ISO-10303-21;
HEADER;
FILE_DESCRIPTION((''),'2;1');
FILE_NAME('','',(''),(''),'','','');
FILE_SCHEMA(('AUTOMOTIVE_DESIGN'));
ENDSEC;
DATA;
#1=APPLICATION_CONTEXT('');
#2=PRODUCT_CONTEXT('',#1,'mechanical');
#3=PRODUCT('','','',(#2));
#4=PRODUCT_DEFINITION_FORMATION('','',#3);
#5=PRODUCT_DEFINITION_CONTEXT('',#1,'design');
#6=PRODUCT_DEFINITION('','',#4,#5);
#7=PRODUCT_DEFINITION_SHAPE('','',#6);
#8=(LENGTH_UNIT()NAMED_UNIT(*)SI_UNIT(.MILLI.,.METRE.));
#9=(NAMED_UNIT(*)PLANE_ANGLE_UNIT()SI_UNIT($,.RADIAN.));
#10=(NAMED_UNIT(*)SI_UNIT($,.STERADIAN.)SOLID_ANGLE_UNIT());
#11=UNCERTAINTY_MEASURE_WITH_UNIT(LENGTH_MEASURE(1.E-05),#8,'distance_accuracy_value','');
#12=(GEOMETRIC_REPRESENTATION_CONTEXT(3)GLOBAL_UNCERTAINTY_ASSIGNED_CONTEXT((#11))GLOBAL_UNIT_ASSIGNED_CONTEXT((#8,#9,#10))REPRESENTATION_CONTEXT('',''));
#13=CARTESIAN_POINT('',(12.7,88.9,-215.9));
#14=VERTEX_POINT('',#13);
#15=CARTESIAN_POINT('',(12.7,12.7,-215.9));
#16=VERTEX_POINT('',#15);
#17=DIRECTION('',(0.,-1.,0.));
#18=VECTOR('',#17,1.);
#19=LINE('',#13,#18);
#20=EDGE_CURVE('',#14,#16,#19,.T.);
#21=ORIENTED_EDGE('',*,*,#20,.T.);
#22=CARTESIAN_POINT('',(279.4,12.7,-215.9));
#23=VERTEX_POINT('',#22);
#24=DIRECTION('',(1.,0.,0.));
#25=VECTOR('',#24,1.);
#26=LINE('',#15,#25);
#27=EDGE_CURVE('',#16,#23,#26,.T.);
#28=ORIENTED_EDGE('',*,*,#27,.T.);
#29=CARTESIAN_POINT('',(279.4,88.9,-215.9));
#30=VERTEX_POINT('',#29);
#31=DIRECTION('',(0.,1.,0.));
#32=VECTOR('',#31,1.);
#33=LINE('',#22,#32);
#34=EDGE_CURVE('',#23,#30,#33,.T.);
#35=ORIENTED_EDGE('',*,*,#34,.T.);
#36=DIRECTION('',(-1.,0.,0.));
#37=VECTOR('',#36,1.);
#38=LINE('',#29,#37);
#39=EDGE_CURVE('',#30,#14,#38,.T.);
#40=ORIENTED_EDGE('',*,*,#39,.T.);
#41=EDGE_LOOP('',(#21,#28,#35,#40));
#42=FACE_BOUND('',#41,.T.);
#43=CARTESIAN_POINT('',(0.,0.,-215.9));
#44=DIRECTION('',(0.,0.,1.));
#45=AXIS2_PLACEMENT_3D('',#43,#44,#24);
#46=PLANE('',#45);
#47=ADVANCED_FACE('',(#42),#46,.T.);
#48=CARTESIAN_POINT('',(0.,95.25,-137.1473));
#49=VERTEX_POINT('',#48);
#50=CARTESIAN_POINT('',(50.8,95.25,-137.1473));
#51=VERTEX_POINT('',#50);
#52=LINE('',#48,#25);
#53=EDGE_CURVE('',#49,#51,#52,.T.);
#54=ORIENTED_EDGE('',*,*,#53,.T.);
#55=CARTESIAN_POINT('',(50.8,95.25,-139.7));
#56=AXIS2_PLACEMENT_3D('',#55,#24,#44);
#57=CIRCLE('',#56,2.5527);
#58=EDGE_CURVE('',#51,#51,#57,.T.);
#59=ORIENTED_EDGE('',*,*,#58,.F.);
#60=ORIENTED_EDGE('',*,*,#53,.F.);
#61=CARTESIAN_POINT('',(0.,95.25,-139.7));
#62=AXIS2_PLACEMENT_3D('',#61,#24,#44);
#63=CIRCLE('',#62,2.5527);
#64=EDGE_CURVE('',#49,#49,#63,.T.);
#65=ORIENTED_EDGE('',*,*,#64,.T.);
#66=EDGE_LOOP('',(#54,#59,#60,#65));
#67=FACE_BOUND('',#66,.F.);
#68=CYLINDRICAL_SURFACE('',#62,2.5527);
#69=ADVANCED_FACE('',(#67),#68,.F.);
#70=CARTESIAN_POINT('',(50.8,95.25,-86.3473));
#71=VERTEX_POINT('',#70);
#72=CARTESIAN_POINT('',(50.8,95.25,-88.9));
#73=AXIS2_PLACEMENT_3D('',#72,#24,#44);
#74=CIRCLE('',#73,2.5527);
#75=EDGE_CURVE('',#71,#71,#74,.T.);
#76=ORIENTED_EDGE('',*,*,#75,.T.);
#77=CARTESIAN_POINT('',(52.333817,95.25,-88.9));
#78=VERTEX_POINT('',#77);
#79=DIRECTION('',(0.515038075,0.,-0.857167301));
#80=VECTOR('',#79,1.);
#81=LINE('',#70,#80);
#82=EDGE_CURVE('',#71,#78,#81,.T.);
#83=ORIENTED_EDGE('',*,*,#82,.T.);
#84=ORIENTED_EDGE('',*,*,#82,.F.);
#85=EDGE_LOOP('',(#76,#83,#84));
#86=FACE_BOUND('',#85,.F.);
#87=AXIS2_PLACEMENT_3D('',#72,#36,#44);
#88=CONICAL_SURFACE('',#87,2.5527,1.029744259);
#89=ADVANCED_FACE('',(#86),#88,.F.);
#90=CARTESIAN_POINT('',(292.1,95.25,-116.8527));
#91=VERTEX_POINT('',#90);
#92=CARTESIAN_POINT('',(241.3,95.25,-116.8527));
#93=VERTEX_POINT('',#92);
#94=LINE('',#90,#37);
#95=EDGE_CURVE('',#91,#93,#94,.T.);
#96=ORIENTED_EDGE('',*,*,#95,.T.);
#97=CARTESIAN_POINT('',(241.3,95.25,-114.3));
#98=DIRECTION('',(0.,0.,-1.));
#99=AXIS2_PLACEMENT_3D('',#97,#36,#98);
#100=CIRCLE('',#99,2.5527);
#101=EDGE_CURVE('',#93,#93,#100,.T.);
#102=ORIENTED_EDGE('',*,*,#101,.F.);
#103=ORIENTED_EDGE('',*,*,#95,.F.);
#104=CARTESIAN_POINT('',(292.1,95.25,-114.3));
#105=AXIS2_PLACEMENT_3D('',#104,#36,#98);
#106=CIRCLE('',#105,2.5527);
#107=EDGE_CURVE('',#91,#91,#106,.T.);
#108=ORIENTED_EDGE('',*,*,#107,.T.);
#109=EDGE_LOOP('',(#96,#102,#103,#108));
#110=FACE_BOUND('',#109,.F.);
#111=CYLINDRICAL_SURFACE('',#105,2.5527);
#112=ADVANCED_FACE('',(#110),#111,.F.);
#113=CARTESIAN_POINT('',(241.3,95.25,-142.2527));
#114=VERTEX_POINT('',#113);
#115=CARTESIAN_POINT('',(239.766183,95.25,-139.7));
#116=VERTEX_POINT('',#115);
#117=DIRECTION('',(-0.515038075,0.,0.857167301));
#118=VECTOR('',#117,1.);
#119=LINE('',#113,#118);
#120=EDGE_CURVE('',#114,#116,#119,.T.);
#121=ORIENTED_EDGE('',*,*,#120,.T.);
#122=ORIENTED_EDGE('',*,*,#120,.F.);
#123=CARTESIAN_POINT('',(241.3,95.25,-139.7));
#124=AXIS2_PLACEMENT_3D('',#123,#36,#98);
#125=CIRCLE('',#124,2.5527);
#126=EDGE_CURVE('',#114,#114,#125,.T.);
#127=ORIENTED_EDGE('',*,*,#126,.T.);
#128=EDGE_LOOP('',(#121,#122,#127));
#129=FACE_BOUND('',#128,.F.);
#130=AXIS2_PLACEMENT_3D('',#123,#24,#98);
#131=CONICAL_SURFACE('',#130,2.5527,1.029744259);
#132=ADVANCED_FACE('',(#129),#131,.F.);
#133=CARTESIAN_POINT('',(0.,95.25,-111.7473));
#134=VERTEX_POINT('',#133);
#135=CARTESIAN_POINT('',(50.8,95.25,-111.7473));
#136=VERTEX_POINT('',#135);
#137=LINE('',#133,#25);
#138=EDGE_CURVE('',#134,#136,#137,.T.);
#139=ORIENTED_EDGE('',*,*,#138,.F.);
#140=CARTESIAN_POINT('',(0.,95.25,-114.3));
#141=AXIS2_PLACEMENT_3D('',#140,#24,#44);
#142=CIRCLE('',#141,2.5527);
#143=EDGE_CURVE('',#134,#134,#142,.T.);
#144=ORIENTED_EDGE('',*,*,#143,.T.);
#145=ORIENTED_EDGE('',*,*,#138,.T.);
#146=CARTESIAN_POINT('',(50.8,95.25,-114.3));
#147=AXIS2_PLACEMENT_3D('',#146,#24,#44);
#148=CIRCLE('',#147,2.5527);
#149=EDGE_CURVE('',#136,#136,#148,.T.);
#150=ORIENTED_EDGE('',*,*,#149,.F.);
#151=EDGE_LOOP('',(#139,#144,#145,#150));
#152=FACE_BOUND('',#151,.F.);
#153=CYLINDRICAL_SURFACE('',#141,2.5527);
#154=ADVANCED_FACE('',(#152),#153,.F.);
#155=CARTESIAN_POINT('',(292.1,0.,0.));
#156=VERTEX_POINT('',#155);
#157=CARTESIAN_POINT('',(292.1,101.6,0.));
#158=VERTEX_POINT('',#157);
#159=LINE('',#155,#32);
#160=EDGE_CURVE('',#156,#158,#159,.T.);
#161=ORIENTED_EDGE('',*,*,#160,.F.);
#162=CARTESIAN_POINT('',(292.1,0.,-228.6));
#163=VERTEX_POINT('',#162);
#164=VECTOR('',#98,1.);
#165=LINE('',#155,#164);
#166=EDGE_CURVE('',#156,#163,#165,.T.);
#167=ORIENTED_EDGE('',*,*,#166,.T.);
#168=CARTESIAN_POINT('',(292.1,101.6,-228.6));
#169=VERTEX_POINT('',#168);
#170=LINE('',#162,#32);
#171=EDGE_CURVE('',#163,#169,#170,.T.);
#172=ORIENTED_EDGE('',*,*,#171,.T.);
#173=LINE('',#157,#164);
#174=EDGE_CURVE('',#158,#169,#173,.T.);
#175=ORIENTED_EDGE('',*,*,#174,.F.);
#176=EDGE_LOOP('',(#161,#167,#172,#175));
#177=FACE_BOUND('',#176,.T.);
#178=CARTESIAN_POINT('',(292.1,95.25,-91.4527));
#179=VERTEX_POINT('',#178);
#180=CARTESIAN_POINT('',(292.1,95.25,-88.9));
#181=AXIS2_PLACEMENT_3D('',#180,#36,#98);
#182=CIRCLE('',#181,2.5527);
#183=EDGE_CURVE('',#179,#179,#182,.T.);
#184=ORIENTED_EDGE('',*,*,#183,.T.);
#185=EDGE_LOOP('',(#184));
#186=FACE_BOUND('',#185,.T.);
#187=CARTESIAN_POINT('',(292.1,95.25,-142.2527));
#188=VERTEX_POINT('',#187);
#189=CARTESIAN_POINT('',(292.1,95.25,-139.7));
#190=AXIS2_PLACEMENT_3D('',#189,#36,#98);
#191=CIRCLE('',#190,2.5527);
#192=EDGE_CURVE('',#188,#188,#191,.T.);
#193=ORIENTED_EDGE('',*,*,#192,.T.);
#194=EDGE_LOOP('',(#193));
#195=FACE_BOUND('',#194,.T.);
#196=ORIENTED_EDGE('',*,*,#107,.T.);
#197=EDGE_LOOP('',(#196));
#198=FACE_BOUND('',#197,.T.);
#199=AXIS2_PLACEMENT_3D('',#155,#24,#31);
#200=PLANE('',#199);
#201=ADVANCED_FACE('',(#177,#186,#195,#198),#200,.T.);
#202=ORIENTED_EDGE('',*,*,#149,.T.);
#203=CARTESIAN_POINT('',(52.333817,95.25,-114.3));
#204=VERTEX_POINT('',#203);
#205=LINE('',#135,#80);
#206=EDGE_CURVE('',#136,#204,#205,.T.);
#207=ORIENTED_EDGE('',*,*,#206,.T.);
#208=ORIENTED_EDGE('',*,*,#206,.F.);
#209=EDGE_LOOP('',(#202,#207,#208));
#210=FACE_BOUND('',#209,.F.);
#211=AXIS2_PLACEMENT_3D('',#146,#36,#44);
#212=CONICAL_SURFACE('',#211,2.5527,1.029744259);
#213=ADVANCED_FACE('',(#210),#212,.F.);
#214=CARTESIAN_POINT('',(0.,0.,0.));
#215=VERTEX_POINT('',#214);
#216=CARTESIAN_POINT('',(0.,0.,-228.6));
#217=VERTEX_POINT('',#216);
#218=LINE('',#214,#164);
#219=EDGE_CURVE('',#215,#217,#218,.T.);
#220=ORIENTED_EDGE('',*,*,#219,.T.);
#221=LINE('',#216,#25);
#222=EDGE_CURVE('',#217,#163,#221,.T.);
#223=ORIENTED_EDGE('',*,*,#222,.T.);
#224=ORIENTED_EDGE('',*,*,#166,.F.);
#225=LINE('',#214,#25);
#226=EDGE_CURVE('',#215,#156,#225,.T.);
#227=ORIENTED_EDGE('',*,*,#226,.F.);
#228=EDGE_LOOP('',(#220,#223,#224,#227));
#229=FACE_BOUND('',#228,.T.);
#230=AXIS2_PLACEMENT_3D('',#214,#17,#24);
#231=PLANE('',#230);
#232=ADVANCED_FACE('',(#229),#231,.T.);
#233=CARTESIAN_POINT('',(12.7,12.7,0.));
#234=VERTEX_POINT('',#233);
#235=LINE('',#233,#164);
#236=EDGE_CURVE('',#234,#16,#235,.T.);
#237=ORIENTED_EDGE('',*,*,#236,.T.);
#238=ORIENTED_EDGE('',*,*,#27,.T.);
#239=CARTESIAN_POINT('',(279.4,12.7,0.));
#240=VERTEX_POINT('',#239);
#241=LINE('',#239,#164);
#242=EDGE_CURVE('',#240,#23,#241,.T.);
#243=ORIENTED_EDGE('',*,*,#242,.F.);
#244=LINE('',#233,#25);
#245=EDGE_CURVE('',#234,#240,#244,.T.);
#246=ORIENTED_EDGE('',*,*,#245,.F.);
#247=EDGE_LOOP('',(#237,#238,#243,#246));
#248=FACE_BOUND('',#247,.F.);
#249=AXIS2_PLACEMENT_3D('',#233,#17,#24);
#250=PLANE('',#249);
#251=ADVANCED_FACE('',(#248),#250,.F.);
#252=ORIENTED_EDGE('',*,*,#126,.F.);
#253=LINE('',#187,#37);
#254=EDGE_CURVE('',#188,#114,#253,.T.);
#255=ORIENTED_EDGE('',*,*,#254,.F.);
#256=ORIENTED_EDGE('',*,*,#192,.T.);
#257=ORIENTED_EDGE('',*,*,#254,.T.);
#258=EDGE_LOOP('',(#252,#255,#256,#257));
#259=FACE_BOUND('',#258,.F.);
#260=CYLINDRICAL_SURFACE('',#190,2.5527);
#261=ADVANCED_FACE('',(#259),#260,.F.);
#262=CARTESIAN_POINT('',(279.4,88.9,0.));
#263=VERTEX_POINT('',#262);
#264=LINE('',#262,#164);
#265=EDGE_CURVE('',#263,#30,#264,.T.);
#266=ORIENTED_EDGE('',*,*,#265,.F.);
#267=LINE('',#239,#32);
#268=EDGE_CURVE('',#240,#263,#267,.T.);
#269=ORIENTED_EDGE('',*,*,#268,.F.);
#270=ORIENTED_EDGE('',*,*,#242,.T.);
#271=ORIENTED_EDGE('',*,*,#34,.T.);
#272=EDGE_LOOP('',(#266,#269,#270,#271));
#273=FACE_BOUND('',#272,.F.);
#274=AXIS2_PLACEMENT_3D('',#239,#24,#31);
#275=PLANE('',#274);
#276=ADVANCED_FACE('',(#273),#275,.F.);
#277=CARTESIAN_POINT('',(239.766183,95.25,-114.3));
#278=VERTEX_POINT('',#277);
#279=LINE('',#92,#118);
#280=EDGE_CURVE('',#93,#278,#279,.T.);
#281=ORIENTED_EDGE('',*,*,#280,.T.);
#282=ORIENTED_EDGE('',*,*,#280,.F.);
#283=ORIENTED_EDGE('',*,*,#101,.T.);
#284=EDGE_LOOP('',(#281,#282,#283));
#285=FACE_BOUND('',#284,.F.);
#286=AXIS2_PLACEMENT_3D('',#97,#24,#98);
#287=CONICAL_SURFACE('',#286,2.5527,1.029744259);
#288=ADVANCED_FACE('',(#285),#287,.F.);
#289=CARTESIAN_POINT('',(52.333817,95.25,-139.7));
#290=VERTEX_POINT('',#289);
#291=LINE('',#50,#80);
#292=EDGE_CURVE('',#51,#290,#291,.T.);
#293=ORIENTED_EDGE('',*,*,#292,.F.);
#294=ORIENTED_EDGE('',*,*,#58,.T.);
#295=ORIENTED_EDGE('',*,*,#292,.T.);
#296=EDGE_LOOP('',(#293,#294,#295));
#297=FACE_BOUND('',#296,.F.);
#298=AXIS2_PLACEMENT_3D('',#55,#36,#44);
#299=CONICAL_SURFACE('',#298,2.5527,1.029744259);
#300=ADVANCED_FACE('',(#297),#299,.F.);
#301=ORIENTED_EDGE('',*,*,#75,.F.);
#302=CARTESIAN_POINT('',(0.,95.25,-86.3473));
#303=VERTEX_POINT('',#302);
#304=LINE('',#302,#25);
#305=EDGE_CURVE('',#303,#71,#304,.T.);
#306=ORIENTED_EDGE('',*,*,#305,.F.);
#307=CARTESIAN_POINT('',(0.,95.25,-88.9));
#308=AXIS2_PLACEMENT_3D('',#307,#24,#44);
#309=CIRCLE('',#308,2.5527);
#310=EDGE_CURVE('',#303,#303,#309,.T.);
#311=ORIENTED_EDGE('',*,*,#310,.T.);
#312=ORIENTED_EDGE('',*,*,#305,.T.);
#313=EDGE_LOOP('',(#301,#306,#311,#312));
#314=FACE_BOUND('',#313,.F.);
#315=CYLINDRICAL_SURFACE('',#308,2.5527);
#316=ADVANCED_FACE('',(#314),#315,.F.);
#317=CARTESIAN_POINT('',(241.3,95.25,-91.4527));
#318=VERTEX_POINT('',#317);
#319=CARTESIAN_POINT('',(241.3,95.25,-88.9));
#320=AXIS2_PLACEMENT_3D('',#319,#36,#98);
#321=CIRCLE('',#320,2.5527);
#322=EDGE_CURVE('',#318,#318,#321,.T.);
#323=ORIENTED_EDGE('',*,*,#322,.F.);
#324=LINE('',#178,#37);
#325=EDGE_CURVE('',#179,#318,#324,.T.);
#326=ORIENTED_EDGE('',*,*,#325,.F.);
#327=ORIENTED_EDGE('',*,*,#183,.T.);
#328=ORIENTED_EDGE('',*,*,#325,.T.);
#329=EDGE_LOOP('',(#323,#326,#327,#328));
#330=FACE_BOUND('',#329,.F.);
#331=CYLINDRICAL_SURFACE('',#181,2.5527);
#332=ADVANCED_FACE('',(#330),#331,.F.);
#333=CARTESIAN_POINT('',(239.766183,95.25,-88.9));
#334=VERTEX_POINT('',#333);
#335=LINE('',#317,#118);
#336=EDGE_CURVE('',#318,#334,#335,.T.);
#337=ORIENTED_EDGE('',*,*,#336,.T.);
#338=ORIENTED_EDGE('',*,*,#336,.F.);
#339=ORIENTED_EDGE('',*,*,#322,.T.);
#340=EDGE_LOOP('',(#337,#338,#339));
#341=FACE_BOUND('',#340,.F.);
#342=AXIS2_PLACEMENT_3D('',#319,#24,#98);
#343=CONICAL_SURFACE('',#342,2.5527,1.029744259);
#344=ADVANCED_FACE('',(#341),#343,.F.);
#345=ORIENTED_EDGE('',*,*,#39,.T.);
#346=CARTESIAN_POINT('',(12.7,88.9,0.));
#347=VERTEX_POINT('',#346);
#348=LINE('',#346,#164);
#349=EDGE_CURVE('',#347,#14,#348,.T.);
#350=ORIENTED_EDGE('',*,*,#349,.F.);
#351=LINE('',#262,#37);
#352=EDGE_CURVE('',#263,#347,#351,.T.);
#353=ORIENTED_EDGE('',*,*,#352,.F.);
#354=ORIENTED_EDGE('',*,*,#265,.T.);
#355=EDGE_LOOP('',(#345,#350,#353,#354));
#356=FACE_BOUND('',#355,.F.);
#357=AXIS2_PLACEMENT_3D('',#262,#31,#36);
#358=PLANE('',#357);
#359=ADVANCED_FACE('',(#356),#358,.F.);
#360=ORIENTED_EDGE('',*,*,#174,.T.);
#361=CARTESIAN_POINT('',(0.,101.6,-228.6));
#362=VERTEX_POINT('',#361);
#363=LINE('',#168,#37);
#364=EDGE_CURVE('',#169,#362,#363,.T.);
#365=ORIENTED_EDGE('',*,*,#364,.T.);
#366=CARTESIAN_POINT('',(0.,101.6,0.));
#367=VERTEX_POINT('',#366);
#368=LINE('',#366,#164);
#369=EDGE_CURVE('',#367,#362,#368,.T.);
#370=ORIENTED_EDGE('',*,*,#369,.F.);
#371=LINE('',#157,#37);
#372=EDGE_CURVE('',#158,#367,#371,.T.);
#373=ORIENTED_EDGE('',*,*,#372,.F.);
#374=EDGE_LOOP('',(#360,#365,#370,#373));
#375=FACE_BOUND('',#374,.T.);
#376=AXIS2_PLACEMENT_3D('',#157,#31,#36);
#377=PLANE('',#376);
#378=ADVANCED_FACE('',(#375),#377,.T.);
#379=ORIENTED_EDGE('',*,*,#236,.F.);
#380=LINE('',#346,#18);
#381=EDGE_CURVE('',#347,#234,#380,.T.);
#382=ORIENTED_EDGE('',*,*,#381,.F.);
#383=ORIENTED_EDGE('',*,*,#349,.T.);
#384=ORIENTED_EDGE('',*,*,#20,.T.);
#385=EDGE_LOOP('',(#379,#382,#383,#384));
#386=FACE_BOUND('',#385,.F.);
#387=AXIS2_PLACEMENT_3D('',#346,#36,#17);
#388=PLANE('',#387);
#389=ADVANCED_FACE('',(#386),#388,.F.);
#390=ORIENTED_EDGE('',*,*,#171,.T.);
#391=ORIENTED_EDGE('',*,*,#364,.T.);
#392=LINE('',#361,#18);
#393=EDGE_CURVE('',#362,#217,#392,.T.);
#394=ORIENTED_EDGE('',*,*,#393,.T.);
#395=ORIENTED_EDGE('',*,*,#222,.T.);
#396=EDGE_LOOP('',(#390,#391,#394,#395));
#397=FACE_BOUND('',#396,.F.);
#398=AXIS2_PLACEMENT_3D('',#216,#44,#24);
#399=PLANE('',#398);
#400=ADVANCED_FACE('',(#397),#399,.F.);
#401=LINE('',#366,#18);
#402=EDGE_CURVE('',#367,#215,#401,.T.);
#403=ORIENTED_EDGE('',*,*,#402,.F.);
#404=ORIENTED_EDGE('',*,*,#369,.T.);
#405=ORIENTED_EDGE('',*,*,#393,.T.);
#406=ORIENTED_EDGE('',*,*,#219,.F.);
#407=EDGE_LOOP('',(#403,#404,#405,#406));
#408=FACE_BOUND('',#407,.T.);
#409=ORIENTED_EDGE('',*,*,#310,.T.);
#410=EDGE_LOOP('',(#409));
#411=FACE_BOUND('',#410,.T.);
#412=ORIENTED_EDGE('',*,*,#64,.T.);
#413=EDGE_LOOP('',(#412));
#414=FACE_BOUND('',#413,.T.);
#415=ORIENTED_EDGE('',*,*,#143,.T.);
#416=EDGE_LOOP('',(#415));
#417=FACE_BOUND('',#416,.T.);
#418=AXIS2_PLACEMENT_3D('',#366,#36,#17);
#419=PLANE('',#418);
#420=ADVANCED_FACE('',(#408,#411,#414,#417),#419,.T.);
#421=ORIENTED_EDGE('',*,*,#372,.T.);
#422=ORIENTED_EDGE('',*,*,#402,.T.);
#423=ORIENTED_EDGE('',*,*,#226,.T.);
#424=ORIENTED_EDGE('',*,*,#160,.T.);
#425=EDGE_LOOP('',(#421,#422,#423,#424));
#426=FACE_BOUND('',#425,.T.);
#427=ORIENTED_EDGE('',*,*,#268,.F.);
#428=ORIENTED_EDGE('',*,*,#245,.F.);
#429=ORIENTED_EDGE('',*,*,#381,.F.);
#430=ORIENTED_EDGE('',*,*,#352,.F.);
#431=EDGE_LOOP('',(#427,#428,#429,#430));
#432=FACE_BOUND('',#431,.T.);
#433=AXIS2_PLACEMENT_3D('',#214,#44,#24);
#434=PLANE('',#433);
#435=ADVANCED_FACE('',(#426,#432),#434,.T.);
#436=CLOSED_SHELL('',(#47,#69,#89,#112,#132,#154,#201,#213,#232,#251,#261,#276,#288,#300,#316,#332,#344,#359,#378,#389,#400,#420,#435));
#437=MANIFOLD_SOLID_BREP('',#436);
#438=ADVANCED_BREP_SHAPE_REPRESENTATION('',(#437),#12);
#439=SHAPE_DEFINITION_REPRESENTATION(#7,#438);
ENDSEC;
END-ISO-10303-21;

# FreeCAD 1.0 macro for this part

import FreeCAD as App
import Part
import Sketcher

V = App.Vector
Q = App.Units.Quantity


def add_polygon(sketch, points):
    """Adds a closed chain of lines whose ends are joined by coincident constraints."""
    first, n = sketch.GeometryCount, len(points)
    for a, b in zip(points, points[1:] + points[:1]):
        sketch.addGeometry(Part.LineSegment(App.Vector(*a, 0), App.Vector(*b, 0)), False)
    for i in range(n):
        sketch.addConstraint(Sketcher.Constraint("Coincident", first + i, 2, first + (i + 1) % n, 1))

doc = App.newDocument("Part")
params = doc.addObject("Spreadsheet::Sheet", "Params")
for row, (alias, value) in enumerate([
    ("sketch1_height", "4 in"),
    ("sketch1_width", "11.5 in"),
    ("pad1_length", "9 in"),
    ("sketch2_height", "3 in"),
    ("sketch2_width", "10.5 in"),
    ("pocket1_length", "8.5 in"),
    ("sketch3_diameter", "0.201 in"),
    ("hole_diameter", "0.201 in"),
    ("hole_depth", "2 in"),
    ("sketch4_diameter", "0.201 in"),
    ("hole2_diameter", "0.201 in"),
    ("hole2_depth", "2 in"),
], start=1):
    params.set(f"A{row}", alias)
    params.set(f"B{row}", "=" + value)
    params.setAlias(f"B{row}", alias)

body = doc.addObject("PartDesign::Body", "Body")

sketch1 = body.newObject("Sketcher::SketchObject", "Sketch")
sketch1.AttachmentSupport = (doc.getObject("XY_Plane"), [""])
sketch1.MapMode = "FlatFace"
add_polygon(sketch1, [(0, 101.6), (0, 0), (292.1, 0), (292.1, 101.6)])
sketch1.addConstraint(Sketcher.Constraint("Vertical", 0))
sketch1.addConstraint(Sketcher.Constraint("Horizontal", 1))
sketch1.addConstraint(Sketcher.Constraint("Vertical", 2))
sketch1.addConstraint(Sketcher.Constraint("Horizontal", 3))
sketch1.addConstraint(Sketcher.Constraint("Coincident", 0, 2, -1, 1))
sketch1.addConstraint(Sketcher.Constraint("DistanceY", 0, 2, 0, 1, Q("4 in")))
sketch1.addConstraint(Sketcher.Constraint("DistanceX", 1, 1, 1, 2, Q("11.5 in")))
sketch1.setExpression("Constraints[9]", "Params.sketch1_height")
sketch1.setExpression("Constraints[10]", "Params.sketch1_width")
pad1 = body.newObject("PartDesign::Pad", "Pad")
pad1.Profile = sketch1
pad1.setExpression("Length", "Params.pad1_length")
pad1.Reversed = True

sketch2 = body.newObject("Sketcher::SketchObject", "Sketch001")
sketch2.AttachmentSupport = (doc.getObject("XY_Plane"), [""])
sketch2.MapMode = "FlatFace"
add_polygon(sketch2, [(12.7, 88.9), (12.7, 12.7), (279.4, 12.7), (279.4, 88.9)])
sketch2.addConstraint(Sketcher.Constraint("Vertical", 0))
sketch2.addConstraint(Sketcher.Constraint("Horizontal", 1))
sketch2.addConstraint(Sketcher.Constraint("Vertical", 2))
sketch2.addConstraint(Sketcher.Constraint("Horizontal", 3))
sketch2.addConstraint(Sketcher.Constraint("DistanceX", -1, 1, 0, 2, Q("0.5 in")))
sketch2.addConstraint(Sketcher.Constraint("DistanceY", -1, 1, 0, 2, Q("0.5 in")))
sketch2.addConstraint(Sketcher.Constraint("DistanceY", 0, 2, 0, 1, Q("3 in")))
sketch2.addConstraint(Sketcher.Constraint("DistanceX", 1, 1, 1, 2, Q("10.5 in")))
sketch2.setExpression("Constraints[10]", "Params.sketch2_height")
sketch2.setExpression("Constraints[11]", "Params.sketch2_width")
pocket1 = body.newObject("PartDesign::Pocket", "Pocket")
pocket1.Profile = sketch2
pocket1.setExpression("Length", "Params.pocket1_length")

sketch3 = body.newObject("Sketcher::SketchObject", "Sketch002")
sketch3.AttachmentSupport = (doc.getObject("YZ_Plane"), [""])
sketch3.MapMode = "FlatFace"
sketch3.AttachmentOffset = App.Placement(V(0, 0, 11.5 * 25.4), App.Rotation())
sketch3.addGeometry(Part.Circle(V(95.25, -88.9, 0), V(0, 0, 1), 2.5527), False)
sketch3.addGeometry(Part.Circle(V(95.25, -114.3, 0), V(0, 0, 1), 2.5527), False)
sketch3.addGeometry(Part.Circle(V(95.25, -139.7, 0), V(0, 0, 1), 2.5527), False)
sketch3.addConstraint(Sketcher.Constraint("Equal", 0, 1))
sketch3.addConstraint(Sketcher.Constraint("Equal", 1, 2))
sketch3.addConstraint(Sketcher.Constraint("Vertical", 0, 3, 1, 3))
sketch3.addConstraint(Sketcher.Constraint("Vertical", 1, 3, 2, 3))
sketch3.addConstraint(Sketcher.Constraint("Diameter", 0, Q("0.201 in")))
sketch3.addConstraint(Sketcher.Constraint("DistanceY", 1, 3, 0, 3, Q("1 in")))
sketch3.addConstraint(Sketcher.Constraint("DistanceY", 2, 3, 1, 3, Q("1 in")))
sketch3.addConstraint(Sketcher.Constraint("DistanceY", 0, 3, -1, 1, Q("3.5 in")))
sketch3.addConstraint(Sketcher.Constraint("DistanceX", -1, 1, 0, 3, Q("3.75 in")))
sketch3.setExpression("Constraints[4]", "Params.sketch3_diameter")
doc.recompute()
hole = body.newObject("PartDesign::Hole", "Hole")
hole.Profile = sketch3
hole.ThreadType = "None"
hole.setExpression("Diameter", "Params.hole_diameter")
hole.DepthType = "Dimension"
hole.setExpression("Depth", "Params.hole_depth")
hole.DrillPoint = "Angled"
hole.DrillPointAngle = 118

sketch4 = body.newObject("Sketcher::SketchObject", "Sketch003")
sketch4.AttachmentSupport = (doc.getObject("YZ_Plane"), [""])
sketch4.MapMode = "FlatFace"
sketch4.addGeometry(Part.Circle(V(95.25, -139.7, 0), V(0, 0, 1), 2.5527), False)
sketch4.addGeometry(Part.Circle(V(95.25, -114.3, 0), V(0, 0, 1), 2.5527), False)
sketch4.addGeometry(Part.Circle(V(95.25, -88.9, 0), V(0, 0, 1), 2.5527), False)
sketch4.addConstraint(Sketcher.Constraint("Equal", 0, 1))
sketch4.addConstraint(Sketcher.Constraint("Equal", 1, 2))
sketch4.addConstraint(Sketcher.Constraint("Vertical", 0, 3, 1, 3))
sketch4.addConstraint(Sketcher.Constraint("Vertical", 1, 3, 2, 3))
sketch4.addConstraint(Sketcher.Constraint("Diameter", 0, Q("0.201 in")))
sketch4.addConstraint(Sketcher.Constraint("DistanceY", 0, 3, 1, 3, Q("1 in")))
sketch4.addConstraint(Sketcher.Constraint("DistanceY", 1, 3, 2, 3, Q("1 in")))
sketch4.addConstraint(Sketcher.Constraint("DistanceY", 0, 3, -1, 1, Q("5.5 in")))
sketch4.addConstraint(Sketcher.Constraint("DistanceX", -1, 1, 0, 3, Q("3.75 in")))
sketch4.setExpression("Constraints[4]", "Params.sketch4_diameter")
doc.recompute()
hole2 = body.newObject("PartDesign::Hole", "Hole001")
hole2.Profile = sketch4
hole2.ThreadType = "None"
hole2.setExpression("Diameter", "Params.hole2_diameter")
hole2.DepthType = "Dimension"
hole2.setExpression("Depth", "Params.hole2_depth")
hole2.DrillPoint = "Angled"
hole2.DrillPointAngle = 118
hole2.Reversed = True

doc.recompute()
